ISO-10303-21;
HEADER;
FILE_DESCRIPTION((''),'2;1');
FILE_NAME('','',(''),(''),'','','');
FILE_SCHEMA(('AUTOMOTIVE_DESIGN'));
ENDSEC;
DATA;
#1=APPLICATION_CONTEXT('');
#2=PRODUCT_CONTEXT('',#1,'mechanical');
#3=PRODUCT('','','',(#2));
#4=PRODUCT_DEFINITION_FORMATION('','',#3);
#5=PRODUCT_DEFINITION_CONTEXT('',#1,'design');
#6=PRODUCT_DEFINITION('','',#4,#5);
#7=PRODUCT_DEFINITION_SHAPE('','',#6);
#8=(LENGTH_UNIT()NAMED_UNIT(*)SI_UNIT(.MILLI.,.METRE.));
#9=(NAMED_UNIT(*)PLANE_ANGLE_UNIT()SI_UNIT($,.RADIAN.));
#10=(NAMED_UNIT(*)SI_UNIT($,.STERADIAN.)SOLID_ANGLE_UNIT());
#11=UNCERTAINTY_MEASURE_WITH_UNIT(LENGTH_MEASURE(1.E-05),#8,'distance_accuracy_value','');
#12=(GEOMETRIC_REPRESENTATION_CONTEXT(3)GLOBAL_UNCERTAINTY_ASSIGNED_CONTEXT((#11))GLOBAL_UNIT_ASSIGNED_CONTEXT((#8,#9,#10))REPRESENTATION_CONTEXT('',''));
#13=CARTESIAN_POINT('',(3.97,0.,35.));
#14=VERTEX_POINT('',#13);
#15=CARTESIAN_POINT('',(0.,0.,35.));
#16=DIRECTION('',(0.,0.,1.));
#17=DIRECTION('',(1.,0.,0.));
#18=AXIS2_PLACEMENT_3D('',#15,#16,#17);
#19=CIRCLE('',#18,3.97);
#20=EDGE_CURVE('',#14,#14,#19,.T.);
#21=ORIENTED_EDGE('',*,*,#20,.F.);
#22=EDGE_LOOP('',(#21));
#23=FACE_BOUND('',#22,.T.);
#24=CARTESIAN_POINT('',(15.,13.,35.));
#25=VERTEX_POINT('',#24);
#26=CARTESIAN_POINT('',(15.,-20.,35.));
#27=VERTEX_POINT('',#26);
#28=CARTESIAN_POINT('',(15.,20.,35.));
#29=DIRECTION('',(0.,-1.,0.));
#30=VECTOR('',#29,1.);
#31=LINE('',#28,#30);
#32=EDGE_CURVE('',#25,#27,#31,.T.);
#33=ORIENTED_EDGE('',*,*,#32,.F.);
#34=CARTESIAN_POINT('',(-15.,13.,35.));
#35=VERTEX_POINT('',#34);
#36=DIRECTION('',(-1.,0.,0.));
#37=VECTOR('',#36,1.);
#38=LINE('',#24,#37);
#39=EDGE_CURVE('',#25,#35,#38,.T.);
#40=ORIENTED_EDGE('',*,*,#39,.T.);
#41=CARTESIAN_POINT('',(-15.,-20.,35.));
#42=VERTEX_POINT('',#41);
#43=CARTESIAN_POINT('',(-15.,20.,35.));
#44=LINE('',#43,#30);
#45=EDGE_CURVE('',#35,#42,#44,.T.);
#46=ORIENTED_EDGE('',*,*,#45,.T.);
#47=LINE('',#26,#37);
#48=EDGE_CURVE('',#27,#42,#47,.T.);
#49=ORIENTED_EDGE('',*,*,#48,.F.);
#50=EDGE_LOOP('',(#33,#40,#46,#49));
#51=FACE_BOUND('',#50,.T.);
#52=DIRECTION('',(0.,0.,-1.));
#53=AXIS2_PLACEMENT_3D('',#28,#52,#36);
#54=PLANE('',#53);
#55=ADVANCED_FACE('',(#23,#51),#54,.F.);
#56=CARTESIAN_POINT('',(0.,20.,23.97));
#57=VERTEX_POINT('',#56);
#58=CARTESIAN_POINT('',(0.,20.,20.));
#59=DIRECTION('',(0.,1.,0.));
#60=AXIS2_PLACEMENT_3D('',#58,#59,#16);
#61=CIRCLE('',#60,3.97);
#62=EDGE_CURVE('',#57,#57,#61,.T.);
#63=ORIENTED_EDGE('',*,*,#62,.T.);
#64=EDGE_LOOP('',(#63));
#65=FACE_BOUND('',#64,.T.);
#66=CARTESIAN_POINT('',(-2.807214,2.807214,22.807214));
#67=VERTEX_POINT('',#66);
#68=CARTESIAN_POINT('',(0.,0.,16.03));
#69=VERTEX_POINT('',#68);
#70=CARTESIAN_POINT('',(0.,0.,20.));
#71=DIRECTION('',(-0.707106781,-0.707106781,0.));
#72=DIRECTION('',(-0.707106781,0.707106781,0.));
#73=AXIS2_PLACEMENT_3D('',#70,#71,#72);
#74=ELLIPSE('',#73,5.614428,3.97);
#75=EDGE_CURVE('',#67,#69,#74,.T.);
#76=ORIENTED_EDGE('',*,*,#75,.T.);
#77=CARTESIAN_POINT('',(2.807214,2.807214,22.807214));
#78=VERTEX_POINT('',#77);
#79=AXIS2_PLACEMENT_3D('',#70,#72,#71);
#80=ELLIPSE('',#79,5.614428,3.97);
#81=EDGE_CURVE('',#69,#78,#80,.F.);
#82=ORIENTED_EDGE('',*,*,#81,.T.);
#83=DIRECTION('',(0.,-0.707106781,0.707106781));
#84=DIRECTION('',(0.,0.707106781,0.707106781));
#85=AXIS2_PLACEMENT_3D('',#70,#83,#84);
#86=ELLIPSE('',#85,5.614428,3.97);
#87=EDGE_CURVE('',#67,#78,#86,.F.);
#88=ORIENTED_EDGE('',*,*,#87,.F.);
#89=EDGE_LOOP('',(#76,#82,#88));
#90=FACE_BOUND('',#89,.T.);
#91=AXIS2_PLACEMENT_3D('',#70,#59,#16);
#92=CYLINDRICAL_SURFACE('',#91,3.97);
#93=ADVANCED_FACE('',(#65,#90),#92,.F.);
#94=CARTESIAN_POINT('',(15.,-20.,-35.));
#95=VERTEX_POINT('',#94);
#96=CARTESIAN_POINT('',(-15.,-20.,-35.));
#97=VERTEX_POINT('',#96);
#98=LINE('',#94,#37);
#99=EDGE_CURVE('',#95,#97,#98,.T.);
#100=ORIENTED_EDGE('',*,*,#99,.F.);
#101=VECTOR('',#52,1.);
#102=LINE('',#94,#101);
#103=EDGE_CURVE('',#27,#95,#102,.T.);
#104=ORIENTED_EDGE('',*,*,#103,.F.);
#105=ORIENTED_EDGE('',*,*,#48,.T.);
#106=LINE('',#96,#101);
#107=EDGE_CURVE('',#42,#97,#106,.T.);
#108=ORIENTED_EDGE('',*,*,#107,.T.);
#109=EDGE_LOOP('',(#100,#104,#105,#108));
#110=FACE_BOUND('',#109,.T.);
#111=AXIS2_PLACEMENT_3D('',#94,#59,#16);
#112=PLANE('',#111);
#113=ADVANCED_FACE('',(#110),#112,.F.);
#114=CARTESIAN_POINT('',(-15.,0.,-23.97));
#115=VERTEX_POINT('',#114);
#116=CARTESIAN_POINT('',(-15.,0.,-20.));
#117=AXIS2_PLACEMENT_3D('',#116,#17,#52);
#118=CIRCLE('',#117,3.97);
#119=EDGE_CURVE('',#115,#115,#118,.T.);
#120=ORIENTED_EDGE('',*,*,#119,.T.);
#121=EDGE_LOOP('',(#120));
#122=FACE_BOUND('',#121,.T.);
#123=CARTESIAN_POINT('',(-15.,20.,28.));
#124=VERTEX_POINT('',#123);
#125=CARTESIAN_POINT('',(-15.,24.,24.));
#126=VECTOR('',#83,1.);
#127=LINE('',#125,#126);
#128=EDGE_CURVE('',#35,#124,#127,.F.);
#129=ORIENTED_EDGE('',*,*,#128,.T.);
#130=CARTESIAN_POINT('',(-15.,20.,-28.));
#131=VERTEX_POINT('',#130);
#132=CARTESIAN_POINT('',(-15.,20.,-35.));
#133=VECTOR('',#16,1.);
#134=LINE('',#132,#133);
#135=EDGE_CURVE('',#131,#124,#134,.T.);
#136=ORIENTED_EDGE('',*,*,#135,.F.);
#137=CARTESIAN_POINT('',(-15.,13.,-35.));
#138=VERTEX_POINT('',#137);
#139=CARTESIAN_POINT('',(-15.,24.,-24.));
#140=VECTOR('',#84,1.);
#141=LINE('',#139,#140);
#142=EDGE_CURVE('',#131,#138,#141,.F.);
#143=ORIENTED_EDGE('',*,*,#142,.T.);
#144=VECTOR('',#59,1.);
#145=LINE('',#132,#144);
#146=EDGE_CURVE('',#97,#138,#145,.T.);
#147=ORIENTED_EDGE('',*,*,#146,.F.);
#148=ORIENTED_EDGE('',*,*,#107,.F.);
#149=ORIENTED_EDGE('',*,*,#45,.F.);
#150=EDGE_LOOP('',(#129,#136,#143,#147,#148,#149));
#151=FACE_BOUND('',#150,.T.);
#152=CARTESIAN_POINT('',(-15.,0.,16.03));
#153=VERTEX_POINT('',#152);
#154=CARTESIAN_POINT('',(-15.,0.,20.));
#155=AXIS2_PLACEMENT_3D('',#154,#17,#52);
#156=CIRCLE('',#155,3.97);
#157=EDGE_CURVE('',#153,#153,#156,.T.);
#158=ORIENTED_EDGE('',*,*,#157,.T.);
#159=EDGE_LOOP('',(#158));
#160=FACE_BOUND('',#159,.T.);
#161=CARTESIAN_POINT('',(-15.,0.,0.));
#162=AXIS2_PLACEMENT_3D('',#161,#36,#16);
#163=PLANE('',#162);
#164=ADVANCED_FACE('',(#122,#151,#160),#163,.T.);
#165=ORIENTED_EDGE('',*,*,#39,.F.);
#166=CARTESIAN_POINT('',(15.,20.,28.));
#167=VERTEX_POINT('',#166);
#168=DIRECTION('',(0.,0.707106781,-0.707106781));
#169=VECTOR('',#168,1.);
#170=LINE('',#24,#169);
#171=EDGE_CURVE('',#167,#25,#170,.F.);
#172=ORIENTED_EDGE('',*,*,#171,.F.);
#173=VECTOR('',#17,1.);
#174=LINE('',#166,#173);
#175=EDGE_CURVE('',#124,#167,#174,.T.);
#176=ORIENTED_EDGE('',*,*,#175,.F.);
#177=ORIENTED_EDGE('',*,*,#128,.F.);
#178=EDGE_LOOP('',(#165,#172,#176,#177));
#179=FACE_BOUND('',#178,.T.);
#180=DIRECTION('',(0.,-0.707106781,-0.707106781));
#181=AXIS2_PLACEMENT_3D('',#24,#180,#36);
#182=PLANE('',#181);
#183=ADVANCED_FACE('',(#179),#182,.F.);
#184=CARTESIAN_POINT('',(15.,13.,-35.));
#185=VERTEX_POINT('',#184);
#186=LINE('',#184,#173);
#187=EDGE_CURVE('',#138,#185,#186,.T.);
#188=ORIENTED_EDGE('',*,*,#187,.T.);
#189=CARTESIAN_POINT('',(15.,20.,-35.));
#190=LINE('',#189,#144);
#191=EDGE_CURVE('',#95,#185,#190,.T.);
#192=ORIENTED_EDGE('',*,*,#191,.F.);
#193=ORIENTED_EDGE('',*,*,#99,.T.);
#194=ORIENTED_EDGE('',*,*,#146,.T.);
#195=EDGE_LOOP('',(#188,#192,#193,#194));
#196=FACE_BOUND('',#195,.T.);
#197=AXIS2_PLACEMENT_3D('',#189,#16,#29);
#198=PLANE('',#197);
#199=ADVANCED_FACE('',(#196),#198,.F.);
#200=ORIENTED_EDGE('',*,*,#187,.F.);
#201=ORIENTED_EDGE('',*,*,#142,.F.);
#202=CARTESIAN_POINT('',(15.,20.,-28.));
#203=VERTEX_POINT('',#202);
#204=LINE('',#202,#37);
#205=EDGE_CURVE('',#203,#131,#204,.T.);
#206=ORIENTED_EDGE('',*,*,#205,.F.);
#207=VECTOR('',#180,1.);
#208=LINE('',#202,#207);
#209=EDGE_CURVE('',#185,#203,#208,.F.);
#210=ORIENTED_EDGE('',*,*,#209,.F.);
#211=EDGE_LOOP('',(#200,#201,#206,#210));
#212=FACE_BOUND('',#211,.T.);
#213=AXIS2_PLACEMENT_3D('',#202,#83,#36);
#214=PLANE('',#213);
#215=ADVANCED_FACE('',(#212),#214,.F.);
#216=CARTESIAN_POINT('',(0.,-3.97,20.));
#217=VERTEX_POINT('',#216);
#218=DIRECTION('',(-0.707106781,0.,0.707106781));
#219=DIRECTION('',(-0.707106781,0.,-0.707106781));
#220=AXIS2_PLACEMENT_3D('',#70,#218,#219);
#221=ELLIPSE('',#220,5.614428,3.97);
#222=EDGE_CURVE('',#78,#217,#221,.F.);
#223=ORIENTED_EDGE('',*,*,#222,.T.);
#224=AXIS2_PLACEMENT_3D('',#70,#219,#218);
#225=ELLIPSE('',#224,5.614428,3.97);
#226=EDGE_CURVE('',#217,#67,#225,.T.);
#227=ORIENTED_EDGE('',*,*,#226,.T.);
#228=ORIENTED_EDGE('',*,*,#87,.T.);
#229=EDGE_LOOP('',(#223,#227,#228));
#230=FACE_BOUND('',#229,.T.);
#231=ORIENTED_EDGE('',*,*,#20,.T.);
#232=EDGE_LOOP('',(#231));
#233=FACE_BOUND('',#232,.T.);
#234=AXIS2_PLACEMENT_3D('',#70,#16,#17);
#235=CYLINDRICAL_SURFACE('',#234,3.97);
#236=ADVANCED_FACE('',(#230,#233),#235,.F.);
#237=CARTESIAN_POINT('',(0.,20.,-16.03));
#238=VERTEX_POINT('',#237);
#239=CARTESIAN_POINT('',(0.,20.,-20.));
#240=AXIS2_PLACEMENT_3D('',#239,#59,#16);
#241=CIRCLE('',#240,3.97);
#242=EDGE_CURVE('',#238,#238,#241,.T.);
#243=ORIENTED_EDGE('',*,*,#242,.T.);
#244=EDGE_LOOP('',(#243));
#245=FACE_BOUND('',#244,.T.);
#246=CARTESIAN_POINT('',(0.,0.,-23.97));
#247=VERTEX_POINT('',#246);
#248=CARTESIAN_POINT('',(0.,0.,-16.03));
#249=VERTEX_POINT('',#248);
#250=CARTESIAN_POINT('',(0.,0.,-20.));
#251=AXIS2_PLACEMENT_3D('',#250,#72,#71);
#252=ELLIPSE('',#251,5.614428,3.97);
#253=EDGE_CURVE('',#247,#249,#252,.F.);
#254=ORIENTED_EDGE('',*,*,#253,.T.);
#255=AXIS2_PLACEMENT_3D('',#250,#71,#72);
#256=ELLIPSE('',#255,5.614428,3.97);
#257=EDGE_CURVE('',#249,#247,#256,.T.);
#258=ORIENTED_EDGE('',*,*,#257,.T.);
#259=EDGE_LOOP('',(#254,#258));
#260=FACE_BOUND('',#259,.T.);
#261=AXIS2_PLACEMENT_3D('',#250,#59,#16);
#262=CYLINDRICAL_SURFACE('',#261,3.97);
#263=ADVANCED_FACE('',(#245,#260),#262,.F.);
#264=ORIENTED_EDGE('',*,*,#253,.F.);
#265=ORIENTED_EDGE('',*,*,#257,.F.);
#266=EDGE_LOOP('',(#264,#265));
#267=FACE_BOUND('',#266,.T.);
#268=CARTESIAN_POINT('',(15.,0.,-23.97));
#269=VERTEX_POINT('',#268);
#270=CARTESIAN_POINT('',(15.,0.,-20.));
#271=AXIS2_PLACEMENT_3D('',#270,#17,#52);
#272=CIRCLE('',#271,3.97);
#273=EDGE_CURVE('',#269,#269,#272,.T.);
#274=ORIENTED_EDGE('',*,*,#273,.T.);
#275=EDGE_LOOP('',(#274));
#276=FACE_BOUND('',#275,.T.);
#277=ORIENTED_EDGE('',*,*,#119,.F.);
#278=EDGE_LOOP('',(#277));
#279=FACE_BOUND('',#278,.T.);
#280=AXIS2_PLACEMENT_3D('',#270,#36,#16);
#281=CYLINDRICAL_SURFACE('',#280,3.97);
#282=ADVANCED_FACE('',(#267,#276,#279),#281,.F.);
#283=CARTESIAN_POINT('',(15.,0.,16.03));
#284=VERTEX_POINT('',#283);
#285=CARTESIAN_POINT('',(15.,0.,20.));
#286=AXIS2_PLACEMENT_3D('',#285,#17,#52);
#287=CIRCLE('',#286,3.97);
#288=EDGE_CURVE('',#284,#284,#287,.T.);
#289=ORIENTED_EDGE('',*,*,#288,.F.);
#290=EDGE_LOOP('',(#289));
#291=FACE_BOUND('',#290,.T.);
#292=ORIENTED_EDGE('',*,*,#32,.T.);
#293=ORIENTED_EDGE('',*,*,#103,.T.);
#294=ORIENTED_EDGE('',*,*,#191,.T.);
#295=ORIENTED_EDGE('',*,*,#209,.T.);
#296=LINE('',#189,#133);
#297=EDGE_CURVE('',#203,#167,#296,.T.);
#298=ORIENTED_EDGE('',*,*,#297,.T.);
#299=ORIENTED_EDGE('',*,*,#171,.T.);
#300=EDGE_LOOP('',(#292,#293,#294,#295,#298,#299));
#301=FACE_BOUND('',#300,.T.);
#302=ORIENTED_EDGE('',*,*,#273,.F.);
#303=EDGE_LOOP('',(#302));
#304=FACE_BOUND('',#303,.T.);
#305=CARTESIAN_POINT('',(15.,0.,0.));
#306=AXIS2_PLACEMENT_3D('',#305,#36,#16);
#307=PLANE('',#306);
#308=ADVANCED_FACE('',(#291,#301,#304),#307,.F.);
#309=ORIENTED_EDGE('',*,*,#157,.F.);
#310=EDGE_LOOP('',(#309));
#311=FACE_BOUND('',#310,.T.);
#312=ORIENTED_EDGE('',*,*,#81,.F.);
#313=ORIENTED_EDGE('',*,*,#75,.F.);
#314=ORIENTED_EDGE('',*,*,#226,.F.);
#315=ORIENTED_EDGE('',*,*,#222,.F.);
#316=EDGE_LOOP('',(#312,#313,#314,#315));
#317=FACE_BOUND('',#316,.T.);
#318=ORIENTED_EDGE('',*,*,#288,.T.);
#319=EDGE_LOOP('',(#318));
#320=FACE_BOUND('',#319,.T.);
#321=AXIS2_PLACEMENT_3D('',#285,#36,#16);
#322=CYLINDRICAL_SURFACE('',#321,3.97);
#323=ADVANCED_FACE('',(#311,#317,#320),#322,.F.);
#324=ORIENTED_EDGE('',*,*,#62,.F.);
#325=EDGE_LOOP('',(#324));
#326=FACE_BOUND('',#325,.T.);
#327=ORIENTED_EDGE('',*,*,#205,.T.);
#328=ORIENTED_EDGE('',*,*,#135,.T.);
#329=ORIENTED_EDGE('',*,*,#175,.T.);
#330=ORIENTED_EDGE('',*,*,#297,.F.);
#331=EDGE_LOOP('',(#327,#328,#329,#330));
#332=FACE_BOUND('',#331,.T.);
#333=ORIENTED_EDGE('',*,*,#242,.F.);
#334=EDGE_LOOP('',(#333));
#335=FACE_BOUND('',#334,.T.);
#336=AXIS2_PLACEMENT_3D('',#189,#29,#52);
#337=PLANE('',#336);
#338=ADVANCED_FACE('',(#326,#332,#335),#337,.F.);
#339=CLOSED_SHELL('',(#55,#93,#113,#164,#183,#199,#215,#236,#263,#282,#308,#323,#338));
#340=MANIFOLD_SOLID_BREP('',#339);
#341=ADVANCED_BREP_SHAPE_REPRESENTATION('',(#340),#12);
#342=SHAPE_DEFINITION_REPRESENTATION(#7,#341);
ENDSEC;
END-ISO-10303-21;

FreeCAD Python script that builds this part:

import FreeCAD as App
import Part
import Sketcher

V = App.Vector
Q = App.Units.Quantity


def edges_at(feature, points):
    """Names of the edges that pass closest to the given points."""
    edges = feature.Shape.Edges
    near = lambda p: min(range(len(edges)), key=lambda i: edges[i].distToShape(Part.Vertex(*p))[0])
    return sorted({f"Edge{near(p) + 1}" for p in points})


def add_polygon(sketch, points):
    """Adds a closed chain of lines whose ends are joined by coincident constraints."""
    first, n = sketch.GeometryCount, len(points)
    for a, b in zip(points, points[1:] + points[:1]):
        sketch.addGeometry(Part.LineSegment(App.Vector(*a, 0), App.Vector(*b, 0)), False)
    for i in range(n):
        sketch.addConstraint(Sketcher.Constraint("Coincident", first + i, 2, first + (i + 1) % n, 1))

doc = App.newDocument("Part")
body = doc.addObject("PartDesign::Body", "Body")

# Sketch on YZ plane
sketch1 = body.newObject("Sketcher::SketchObject", "Sketch")
sketch1.AttachmentSupport = (doc.getObject("YZ_Plane"), [""])
sketch1.MapMode = "FlatFace"
add_polygon(sketch1, [(20, 35), (-20, 35), (-20, -35), (20, -35)])  # lines 0-3
sketch1.addGeometry(Part.Circle(V(0, 20, 0), V(0, 0, 1), 4), False)  # 4
sketch1.addGeometry(Part.Circle(V(0, -20, 0), V(0, 0, 1), 4), False)  # 5
sketch1.addConstraint([
    Sketcher.Constraint("Horizontal", 0),
    Sketcher.Constraint("Vertical", 1),
    Sketcher.Constraint("Horizontal", 2),
    Sketcher.Constraint("Vertical", 3),
    Sketcher.Constraint("Equal", 4, 5),
    Sketcher.Constraint("Symmetric", 4, 3, 5, 3, -1, 1),
    Sketcher.Constraint("Symmetric", 0, 2, 2, 2, -1, 1),
    Sketcher.Constraint("PointOnObject", 4, 3, -2),
    Sketcher.Constraint("Diameter", 4, Q("7.94 mm")),
    Sketcher.Constraint("DistanceX", 0, 2, 0, 1, Q("40 mm")),
    Sketcher.Constraint("DistanceY", 1, 2, 1, 1, Q("70 mm")),
    Sketcher.Constraint("DistanceY", -1, 1, 4, 3, Q("20 mm")),
])
pad1 = body.newObject("PartDesign::Pad", "Pad")
pad1.Profile = sketch1
pad1.Length = 30
pad1.Midplane = True

# Sketch on XY plane
sketch2 = body.newObject("Sketcher::SketchObject", "Sketch001")
sketch2.AttachmentSupport = (doc.getObject("XY_Plane"), [""])
sketch2.MapMode = "FlatFace"
sketch2.AttachmentOffset = App.Placement(V(0, 0, 35), App.Rotation())
sketch2.addGeometry(Part.Circle(V(0, 0, 0), V(0, 0, 1), 4), False)
sketch2.addConstraint([
    Sketcher.Constraint("Coincident", 0, 3, -1, 1),
    Sketcher.Constraint("Diameter", 0, Q("7.94 mm")),
])
pocket1 = body.newObject("PartDesign::Pocket", "Pocket")
pocket1.Profile = sketch2
pocket1.Length = 15

# Sketch on XZ plane
sketch3 = body.newObject("Sketcher::SketchObject", "Sketch002")
sketch3.AttachmentSupport = (doc.getObject("XZ_Plane"), [""])
sketch3.MapMode = "FlatFace"
sketch3.AttachmentOffset = App.Placement(V(0, 0, -20), App.Rotation())
sketch3.addGeometry([
    Part.Circle(V(0, -20, 0), V(0, 0, 1), 4),
    Part.Circle(V(0, 20, 0), V(0, 0, 1), 4),
], False)
sketch3.addConstraint([
    Sketcher.Constraint("Equal", 0, 1),
    Sketcher.Constraint("Symmetric", 0, 3, 1, 3, -1, 1),
    Sketcher.Constraint("PointOnObject", 0, 3, -2),
    Sketcher.Constraint("Diameter", 0, Q("7.94 mm")),
    Sketcher.Constraint("DistanceY", 0, 3, -1, 1, Q("20 mm")),
])
pocket2 = body.newObject("PartDesign::Pocket", "Pocket001")
pocket2.Profile = sketch3
pocket2.Length = 20
pocket2.Reversed = True
doc.recompute()

chamfer = body.newObject("PartDesign::Chamfer", "Chamfer")
chamfer.Base = (pocket2, edges_at(pocket2, [(0, 20, 35), (0, 20, -35)]))
chamfer.Size = 7

doc.recompute()
